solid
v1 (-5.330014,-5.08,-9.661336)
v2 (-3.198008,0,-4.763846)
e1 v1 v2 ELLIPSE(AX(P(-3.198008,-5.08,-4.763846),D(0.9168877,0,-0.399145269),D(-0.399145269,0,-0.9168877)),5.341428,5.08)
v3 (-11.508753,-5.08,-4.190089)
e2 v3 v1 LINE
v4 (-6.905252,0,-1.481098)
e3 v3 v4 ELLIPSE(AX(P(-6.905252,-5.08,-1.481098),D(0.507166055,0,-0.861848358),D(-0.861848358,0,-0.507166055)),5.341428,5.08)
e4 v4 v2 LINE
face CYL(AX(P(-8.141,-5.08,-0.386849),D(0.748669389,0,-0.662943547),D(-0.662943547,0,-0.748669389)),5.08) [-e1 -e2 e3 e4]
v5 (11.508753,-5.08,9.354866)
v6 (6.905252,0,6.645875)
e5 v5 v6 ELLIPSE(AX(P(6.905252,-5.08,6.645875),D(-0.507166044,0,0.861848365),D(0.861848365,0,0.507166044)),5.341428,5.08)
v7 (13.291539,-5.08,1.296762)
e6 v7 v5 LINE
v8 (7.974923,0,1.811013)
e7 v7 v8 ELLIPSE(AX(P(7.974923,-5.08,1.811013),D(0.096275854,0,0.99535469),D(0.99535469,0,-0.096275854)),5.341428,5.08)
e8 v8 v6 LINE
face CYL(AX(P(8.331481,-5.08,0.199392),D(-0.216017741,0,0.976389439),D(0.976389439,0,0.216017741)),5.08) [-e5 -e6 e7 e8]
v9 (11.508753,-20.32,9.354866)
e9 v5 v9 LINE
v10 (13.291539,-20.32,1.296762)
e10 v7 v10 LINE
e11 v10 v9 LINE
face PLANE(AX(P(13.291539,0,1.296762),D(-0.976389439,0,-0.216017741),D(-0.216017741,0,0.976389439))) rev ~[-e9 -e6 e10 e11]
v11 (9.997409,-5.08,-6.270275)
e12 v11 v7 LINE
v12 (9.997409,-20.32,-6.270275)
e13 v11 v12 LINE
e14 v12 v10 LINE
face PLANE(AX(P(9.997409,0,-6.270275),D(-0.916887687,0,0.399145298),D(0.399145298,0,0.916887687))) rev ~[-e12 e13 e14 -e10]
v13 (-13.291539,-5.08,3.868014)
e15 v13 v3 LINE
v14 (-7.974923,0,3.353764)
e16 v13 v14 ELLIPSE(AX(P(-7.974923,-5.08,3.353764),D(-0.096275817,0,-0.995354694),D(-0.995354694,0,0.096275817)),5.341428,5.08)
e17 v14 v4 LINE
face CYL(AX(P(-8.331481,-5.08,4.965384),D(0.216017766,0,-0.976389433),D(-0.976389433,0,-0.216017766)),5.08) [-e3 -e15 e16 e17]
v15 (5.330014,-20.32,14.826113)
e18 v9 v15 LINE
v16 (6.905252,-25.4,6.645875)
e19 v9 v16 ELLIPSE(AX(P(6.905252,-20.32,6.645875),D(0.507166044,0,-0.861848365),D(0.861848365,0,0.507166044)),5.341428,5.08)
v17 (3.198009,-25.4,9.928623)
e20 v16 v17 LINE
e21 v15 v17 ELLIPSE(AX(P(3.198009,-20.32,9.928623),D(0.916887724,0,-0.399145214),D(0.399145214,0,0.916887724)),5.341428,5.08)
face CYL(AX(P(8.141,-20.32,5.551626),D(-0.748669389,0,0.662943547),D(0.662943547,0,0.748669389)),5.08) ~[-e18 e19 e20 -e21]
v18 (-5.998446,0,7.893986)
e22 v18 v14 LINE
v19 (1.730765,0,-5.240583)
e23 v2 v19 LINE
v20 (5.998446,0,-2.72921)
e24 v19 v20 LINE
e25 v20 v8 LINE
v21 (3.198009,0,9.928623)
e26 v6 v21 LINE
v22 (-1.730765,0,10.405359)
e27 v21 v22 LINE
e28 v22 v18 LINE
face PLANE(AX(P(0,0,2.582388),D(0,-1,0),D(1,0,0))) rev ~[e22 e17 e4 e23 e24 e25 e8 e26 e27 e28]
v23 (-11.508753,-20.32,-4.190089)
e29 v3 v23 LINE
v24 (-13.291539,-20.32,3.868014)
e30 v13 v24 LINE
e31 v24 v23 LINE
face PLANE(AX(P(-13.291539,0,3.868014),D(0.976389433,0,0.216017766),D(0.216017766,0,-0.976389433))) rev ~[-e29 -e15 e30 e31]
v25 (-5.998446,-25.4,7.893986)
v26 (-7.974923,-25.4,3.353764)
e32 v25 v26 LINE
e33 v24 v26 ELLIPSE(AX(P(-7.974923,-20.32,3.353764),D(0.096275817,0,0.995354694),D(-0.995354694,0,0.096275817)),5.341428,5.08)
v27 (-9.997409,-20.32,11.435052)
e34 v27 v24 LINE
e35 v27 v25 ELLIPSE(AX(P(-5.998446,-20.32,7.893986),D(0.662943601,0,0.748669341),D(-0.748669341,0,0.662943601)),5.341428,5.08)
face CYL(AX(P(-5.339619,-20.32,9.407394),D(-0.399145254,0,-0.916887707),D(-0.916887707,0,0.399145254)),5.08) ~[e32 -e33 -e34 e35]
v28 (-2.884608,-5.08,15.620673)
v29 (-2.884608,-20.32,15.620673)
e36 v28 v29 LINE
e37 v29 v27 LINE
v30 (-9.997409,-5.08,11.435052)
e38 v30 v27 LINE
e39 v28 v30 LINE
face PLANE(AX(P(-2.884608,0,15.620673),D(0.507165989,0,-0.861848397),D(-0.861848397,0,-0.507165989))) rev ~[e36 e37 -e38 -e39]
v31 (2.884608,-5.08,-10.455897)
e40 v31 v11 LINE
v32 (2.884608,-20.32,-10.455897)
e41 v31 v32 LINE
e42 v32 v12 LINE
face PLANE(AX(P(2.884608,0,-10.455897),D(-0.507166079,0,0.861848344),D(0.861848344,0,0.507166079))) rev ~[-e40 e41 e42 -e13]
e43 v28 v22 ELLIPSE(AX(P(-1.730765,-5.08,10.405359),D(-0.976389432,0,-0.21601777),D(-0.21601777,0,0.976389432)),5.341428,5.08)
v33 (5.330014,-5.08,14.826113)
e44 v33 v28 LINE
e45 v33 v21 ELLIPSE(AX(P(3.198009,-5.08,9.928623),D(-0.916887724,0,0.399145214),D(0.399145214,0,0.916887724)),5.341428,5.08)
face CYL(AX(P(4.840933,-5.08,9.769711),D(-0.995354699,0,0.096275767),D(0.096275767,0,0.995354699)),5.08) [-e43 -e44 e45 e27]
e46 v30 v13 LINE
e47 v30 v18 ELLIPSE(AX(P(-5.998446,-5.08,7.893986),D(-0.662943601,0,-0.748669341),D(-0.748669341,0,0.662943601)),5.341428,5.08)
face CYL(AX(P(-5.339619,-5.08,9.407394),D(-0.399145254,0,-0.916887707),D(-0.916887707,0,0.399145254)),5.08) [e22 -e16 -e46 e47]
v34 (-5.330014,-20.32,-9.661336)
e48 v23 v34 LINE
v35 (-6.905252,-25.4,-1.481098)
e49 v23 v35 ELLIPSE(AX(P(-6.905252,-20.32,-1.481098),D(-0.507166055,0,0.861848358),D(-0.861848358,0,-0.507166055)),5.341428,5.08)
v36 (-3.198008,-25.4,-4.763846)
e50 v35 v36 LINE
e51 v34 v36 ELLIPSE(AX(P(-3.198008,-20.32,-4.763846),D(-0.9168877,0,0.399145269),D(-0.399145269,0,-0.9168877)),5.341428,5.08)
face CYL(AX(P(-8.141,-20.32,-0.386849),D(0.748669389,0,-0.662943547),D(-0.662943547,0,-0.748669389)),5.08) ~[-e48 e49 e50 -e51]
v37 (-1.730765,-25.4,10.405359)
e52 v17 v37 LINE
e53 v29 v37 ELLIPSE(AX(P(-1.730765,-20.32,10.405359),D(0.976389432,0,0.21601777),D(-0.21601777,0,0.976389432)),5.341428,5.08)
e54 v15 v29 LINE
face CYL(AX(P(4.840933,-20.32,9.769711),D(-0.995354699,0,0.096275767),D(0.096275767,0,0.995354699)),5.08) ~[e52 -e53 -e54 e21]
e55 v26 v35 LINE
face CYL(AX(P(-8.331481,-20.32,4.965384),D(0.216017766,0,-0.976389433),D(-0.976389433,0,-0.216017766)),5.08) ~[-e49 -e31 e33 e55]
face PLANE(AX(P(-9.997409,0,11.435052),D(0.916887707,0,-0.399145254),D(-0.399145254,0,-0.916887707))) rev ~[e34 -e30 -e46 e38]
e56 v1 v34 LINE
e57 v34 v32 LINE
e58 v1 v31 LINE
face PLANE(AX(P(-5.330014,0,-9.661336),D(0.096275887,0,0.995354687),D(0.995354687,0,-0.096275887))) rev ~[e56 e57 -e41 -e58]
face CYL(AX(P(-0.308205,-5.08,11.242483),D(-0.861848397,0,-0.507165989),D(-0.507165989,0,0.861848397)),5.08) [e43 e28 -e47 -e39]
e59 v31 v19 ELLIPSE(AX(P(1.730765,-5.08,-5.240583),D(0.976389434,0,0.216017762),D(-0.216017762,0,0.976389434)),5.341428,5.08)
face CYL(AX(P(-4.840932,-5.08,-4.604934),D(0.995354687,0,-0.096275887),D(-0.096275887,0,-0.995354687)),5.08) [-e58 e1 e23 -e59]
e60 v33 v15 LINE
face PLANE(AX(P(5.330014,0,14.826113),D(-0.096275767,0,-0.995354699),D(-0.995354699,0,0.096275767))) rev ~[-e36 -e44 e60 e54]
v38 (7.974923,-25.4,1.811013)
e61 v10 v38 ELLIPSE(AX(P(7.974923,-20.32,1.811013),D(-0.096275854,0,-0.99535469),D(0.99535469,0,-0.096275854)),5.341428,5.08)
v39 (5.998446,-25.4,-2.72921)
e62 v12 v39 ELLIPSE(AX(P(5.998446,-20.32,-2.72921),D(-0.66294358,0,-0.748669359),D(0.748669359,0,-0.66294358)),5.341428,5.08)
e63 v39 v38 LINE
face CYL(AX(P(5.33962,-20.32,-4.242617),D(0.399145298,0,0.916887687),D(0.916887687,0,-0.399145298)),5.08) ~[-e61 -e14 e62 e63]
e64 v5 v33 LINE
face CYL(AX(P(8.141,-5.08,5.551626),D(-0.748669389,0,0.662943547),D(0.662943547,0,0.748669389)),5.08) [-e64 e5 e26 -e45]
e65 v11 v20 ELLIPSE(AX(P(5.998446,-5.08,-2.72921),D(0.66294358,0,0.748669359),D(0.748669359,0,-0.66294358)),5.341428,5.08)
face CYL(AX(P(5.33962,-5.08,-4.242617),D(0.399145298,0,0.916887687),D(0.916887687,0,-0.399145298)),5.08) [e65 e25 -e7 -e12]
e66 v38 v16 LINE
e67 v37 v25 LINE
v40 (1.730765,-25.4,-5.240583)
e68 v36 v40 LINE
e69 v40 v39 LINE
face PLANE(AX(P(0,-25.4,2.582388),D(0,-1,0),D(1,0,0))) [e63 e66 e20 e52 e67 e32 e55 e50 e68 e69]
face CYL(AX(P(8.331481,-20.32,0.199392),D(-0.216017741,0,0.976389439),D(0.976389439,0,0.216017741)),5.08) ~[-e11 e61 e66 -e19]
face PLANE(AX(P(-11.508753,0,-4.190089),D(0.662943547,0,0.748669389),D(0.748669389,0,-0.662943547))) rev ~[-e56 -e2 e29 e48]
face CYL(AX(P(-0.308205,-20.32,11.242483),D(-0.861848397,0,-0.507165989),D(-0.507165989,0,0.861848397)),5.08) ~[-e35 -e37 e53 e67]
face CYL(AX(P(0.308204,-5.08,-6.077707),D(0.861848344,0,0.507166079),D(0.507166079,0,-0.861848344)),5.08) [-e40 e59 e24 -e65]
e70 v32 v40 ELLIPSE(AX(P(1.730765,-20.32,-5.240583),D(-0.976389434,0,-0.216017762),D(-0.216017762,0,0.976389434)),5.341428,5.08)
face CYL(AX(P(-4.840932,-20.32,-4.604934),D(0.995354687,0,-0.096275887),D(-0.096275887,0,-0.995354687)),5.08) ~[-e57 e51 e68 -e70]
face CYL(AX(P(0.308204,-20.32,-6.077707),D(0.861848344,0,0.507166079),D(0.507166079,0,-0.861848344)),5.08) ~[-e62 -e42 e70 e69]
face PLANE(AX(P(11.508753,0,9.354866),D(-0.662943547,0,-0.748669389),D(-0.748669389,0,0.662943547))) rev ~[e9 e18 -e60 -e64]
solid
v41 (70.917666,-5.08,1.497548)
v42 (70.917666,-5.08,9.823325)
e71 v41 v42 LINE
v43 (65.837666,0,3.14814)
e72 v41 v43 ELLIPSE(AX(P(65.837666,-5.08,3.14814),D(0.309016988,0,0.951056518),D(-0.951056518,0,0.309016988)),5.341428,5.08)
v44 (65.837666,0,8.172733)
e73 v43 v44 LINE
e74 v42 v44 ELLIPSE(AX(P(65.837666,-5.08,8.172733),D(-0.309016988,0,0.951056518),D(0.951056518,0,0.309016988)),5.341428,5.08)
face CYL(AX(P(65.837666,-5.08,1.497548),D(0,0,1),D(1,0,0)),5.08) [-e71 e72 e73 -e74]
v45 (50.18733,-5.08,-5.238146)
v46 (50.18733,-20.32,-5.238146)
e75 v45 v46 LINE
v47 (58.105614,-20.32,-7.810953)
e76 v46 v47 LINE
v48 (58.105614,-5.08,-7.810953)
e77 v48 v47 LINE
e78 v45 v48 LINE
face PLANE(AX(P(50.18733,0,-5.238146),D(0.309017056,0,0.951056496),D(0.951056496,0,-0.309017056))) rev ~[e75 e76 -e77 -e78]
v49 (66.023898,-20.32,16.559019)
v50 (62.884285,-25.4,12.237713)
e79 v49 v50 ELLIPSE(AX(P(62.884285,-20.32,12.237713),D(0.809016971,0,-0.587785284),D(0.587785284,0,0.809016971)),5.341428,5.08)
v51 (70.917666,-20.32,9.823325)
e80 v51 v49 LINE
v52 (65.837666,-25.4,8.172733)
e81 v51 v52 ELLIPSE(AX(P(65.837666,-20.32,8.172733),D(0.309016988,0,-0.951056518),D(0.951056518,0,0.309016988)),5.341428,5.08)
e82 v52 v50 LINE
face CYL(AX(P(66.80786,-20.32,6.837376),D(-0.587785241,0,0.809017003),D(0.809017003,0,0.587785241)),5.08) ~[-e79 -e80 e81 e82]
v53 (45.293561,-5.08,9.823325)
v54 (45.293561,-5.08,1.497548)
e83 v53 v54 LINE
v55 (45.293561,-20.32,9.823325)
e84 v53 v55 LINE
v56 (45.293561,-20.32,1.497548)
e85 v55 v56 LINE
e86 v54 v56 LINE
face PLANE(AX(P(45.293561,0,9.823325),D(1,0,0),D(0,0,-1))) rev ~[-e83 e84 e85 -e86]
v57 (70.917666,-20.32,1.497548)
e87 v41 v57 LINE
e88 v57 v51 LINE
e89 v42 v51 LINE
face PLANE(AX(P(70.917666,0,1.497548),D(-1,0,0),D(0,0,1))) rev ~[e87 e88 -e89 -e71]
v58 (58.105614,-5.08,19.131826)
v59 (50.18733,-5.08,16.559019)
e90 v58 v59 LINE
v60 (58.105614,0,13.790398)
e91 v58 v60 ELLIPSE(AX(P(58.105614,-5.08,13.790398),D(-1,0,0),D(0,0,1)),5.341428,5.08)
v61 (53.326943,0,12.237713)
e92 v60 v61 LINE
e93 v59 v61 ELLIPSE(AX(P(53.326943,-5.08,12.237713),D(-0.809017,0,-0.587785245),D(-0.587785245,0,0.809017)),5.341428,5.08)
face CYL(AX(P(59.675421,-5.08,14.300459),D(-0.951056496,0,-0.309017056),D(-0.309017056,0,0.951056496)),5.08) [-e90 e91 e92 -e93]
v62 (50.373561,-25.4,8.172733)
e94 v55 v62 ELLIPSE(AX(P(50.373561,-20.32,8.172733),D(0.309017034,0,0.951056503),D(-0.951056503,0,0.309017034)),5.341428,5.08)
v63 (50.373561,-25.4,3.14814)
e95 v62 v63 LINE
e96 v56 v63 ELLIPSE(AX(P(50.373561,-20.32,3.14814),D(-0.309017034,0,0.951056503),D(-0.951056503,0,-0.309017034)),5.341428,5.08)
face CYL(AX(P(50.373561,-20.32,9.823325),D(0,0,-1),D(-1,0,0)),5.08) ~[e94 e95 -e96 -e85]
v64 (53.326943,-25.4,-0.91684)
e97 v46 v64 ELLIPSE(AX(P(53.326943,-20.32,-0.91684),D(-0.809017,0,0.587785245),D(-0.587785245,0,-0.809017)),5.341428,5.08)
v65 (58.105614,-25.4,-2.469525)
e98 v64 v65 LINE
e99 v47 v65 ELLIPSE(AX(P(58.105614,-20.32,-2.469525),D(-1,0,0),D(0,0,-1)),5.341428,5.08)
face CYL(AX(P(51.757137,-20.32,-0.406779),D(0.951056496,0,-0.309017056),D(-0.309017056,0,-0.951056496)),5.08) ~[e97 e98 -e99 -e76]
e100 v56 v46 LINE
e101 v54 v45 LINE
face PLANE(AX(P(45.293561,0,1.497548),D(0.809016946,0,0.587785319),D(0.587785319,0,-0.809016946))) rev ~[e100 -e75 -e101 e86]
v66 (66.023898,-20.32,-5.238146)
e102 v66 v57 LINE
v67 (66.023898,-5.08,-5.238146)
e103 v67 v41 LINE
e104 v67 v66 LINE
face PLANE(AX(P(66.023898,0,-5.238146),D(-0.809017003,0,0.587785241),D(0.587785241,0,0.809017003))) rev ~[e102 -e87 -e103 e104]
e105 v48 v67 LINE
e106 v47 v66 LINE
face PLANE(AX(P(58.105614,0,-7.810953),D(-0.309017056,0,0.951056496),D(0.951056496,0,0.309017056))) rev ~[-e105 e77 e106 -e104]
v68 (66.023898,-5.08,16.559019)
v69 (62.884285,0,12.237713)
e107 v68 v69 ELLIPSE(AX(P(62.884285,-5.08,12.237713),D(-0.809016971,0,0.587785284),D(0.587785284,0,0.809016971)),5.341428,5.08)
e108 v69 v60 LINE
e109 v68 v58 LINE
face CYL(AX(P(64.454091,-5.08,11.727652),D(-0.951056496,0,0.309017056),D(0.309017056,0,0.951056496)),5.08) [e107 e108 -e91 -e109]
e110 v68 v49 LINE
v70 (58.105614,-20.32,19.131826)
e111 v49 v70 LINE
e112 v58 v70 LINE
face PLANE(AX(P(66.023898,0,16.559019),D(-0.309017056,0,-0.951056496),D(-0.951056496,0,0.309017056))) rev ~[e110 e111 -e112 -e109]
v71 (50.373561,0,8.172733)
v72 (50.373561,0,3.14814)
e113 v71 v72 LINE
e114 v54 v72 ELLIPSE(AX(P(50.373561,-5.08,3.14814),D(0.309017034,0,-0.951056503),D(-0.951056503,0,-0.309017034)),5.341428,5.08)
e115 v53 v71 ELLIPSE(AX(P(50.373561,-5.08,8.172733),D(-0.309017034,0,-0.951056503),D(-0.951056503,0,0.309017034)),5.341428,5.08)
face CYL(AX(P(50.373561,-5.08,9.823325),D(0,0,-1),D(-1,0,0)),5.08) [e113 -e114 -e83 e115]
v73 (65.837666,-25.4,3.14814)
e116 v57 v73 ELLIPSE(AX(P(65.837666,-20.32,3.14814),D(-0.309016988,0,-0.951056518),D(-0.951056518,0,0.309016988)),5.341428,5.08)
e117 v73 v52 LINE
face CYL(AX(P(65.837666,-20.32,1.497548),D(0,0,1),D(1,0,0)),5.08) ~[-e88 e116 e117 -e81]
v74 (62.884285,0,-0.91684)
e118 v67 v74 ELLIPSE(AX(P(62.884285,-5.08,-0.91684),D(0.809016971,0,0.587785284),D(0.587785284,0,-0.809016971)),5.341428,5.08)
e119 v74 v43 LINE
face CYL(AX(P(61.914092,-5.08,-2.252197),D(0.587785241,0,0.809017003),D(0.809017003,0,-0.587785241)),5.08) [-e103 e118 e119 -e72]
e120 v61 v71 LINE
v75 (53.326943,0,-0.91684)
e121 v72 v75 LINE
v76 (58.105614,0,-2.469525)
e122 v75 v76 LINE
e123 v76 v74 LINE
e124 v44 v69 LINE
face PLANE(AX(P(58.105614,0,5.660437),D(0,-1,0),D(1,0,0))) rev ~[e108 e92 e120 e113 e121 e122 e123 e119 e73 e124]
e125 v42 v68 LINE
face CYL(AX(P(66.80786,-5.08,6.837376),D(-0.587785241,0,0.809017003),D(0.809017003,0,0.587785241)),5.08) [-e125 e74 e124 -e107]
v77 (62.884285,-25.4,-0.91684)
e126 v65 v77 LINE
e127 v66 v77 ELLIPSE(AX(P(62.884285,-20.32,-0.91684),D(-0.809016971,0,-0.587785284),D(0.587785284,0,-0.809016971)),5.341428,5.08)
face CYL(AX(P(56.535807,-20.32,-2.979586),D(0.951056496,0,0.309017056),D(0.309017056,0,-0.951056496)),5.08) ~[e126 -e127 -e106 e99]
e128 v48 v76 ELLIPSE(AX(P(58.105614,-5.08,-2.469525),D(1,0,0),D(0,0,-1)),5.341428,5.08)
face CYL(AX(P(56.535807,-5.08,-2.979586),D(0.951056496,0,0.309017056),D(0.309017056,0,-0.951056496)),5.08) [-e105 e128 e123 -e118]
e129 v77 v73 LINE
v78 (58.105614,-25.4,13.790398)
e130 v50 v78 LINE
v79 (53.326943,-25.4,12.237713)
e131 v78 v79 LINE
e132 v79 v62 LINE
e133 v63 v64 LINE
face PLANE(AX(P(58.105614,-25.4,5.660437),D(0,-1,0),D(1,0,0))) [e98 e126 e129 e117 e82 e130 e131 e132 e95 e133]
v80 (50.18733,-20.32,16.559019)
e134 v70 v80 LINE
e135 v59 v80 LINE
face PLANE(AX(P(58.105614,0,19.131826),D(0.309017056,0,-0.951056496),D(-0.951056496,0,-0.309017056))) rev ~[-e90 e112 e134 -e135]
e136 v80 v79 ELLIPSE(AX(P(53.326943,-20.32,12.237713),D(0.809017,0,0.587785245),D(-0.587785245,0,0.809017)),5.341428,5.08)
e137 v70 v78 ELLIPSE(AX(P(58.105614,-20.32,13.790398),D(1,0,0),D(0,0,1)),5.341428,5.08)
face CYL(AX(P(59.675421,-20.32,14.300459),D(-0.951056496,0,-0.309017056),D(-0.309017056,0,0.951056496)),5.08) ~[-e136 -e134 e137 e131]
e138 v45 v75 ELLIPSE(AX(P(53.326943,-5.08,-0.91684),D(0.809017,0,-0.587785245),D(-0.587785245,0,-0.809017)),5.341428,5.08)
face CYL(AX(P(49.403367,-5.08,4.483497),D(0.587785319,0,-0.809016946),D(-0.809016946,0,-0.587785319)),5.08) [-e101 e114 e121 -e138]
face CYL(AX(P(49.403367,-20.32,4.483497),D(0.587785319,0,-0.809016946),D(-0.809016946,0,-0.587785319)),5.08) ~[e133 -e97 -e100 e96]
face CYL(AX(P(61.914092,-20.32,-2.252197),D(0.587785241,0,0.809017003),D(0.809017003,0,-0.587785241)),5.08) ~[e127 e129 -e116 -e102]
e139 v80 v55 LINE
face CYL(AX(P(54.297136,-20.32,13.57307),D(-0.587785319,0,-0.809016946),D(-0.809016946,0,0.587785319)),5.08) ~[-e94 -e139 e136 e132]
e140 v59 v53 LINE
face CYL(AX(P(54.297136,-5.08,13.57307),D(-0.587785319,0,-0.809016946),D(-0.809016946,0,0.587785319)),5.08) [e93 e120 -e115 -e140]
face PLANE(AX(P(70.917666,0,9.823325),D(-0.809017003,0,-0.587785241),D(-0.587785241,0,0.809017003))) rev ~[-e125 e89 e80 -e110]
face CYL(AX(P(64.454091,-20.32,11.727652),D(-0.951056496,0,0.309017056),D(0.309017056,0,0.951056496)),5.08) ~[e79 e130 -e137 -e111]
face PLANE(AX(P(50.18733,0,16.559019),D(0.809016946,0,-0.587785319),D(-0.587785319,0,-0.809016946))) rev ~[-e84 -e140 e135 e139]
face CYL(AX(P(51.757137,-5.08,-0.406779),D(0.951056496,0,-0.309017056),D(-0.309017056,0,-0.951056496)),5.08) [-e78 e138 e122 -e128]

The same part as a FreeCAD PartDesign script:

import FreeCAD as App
import Part
import Sketcher
Q = App.Units.Quantity


def edges_at(feature, points):
    """Names of the edges that pass closest to the given points."""
    edges = feature.Shape.Edges
    near = lambda p: min(range(len(edges)), key=lambda i: edges[i].distToShape(Part.Vertex(*p))[0])
    return sorted({f"Edge{near(p) + 1}" for p in points})


def add_polygon(sketch, points):
    """Adds a closed chain of lines whose ends are joined by coincident constraints."""
    first, n = sketch.GeometryCount, len(points)
    for a, b in zip(points, points[1:] + points[:1]):
        sketch.addGeometry(Part.LineSegment(App.Vector(*a, 0), App.Vector(*b, 0)), False)
    for i in range(n):
        sketch.addConstraint(Sketcher.Constraint("Coincident", first + i, 2, first + (i + 1) % n, 1))

doc = App.newDocument("Part")
body = doc.addObject("PartDesign::Body", "Body")
body.AllowCompound = True

sketch1 = body.newObject("Sketcher::SketchObject", "Sketch")
sketch1.AttachmentSupport = (doc.getObject("XZ_Plane"), [""])
sketch1.MapMode = "FlatFace"
add_polygon(sketch1, [(13.291539, 1.296762), (11.508753, 9.354866), (5.330014, 14.826113), (-2.884608, 15.620673), (-9.997409, 11.435052), (-13.291539, 3.868014), (-11.508753, -4.190089), (-5.330014, -9.661336), (2.884608, -10.455897), (9.997409, -6.270275)])
add_polygon(sketch1, [(70.917666, 1.497548), (70.917666, 9.823325), (66.023898, 16.559019), (58.105614, 19.131826), (50.18733, 16.559019), (45.293561, 9.823325), (45.293561, 1.497548), (50.18733, -5.238146), (58.105614, -7.810953), (66.023898, -5.238146)])
sketch1.addConstraint(Sketcher.Constraint("Vertical", 10))
sketch1.addConstraint(Sketcher.Constraint("Vertical", 15))
sketch1.addConstraint(Sketcher.Constraint("DistanceX", -1, 1, 11, 2, 66.023898))
sketch1.addConstraint(Sketcher.Constraint("DistanceX", -1, 1, 18, 2, 66.023898))
sketch1.addConstraint(Sketcher.Constraint("DistanceX", 3, 2, 2, 2, 7.112801))
sketch1.addConstraint(Sketcher.Constraint("DistanceY", 4, 2, 1, 2, 10.958099))
sketch1.addConstraint(Sketcher.Constraint("DistanceY", 5, 2, 1, 2, 19.016202))
sketch1.addConstraint(Sketcher.Constraint("DistanceY", 6, 2, 0, 2, 19.016202))
sketch1.addConstraint(Sketcher.Constraint("DistanceX", 7, 2, 8, 2, 7.112801))
sketch1.addConstraint(Sketcher.Constraint("DistanceY", 8, 2, 10, 2, 16.0936))
sketch1.addConstraint(Sketcher.Constraint("DistanceY", 10, 2, 12, 2, 9.308501))
sketch1.addConstraint(Sketcher.Constraint("DistanceX", 1, 2, 12, 2, 52.7756))
sketch1.addConstraint(Sketcher.Constraint("DistanceY", 14, 2, 12, 2, 9.308501))
sketch1.addConstraint(Sketcher.Constraint("DistanceY", 17, 2, 15, 2, 9.308501))
sketch1.addConstraint(Sketcher.Constraint("DistanceY", 17, 2, 19, 2, 9.308501))
sketch1.addConstraint(Sketcher.Constraint("Distance", 0, 8.252961))
sketch1.addConstraint(Sketcher.Constraint("Distance", 1, 8.252961))
sketch1.addConstraint(Sketcher.Constraint("Distance", 2, 8.252959))
sketch1.addConstraint(Sketcher.Constraint("Distance", 3, 8.252961))
sketch1.addConstraint(Sketcher.Constraint("Distance", 4, 8.25296))
sketch1.addConstraint(Sketcher.Constraint("Distance", 5, 8.25296))
sketch1.addConstraint(Sketcher.Constraint("Distance", 6, 8.252961))
sketch1.addConstraint(Sketcher.Constraint("Distance", 7, 8.25296))
sketch1.addConstraint(Sketcher.Constraint("Distance", 8, 8.252961))
sketch1.addConstraint(Sketcher.Constraint("Distance", 9, 8.25296))
sketch1.addConstraint(Sketcher.Constraint("DistanceY", 10, 1, 10, 2, 8.325777))
sketch1.addConstraint(Sketcher.Constraint("DistanceX", 2, 2, -1, 1, 2.884608))
sketch1.addConstraint(Sketcher.Constraint("DistanceX", 4, 2, -1, 1, 13.291539))
sketch1.addConstraint(Sketcher.Constraint("DistanceY", 5, 2, -1, 1, 4.190089))
sketch1.addConstraint(Sketcher.Constraint("DistanceX", -1, 1, 7, 2, 2.884608))
sketch1.addConstraint(Sketcher.Constraint("DistanceX", -1, 1, 9, 2, 13.291539))
sketch1.addConstraint(Sketcher.Constraint("DistanceY", -1, 1, 11, 2, 16.559019))
sketch1.addConstraint(Sketcher.Constraint("DistanceX", -1, 1, 13, 2, 50.18733))
sketch1.addConstraint(Sketcher.Constraint("DistanceY", -1, 1, 13, 2, 16.559019))
sketch1.addConstraint(Sketcher.Constraint("DistanceX", -1, 1, 14, 2, 45.293561))
sketch1.addConstraint(Sketcher.Constraint("DistanceX", -1, 1, 16, 2, 50.18733))
sketch1.addConstraint(Sketcher.Constraint("DistanceX", 1, 2, 10, 2, 65.587652))
sketch1.addConstraint(Sketcher.Constraint("DistanceY", 16, 2, 14, 2, 15.061471))
sketch1.addConstraint(Sketcher.Constraint("DistanceX", 17, 2, 10, 2, 12.812052))
sketch1.addConstraint(Sketcher.Constraint("DistanceY", 18, 2, 10, 2, 15.061471))
pad1 = body.newObject("PartDesign::Pad", "Pad")
pad1.Profile = sketch1
pad1.Length = Q("1 in")
doc.recompute()

fillet = body.newObject("PartDesign::Fillet", "Fillet")
fillet.Base = (pad1, edges_at(pad1, [
    (6.441, -25.4, -8.363),
    (11.644, -25.4, -2.487),
    (12.4, -25.4, 5.326),
    (8.419, -25.4, 12.09),
    (1.223, -25.4, 15.223),
    (-6.441, -25.4, 13.528),
    (-11.644, -25.4, 7.652),
    (-12.4, -25.4, -0.161),
    (-8.419, -25.4, -6.926),
    (-1.223, -25.4, -10.059),
    (70.918, -25.4, 5.66),
    (68.471, -25.4, 13.191),
    (62.065, -25.4, 17.845),
    (54.146, -25.4, 17.845),
    (47.74, -25.4, 13.191),
    (45.294, -25.4, 5.66),
    (47.74, -25.4, -1.87),
    (54.146, -25.4, -6.525),
    (62.065, -25.4, -6.525),
    (68.471, -25.4, -1.87),
    (6.441, 0, -8.363),
    (11.644, 0, -2.487),
    (12.4, 0, 5.326),
    (8.419, 0, 12.09),
    (1.223, 0, 15.223),
    (-6.441, 0, 13.528),
    (-11.644, 0, 7.652),
    (-12.4, 0, -0.161),
    (-8.419, 0, -6.926),
    (-1.223, 0, -10.059),
    (70.918, 0, 5.66),
    (68.471, 0, 13.191),
    (62.065, 0, 17.845),
    (54.146, 0, 17.845),
    (47.74, 0, 13.191),
    (45.294, 0, 5.66),
    (47.74, 0, -1.87),
    (54.146, 0, -6.525),
    (62.065, 0, -6.525),
    (68.471, 0, -1.87),
]))
fillet.Radius = Q("0.2 in")

doc.recompute()
